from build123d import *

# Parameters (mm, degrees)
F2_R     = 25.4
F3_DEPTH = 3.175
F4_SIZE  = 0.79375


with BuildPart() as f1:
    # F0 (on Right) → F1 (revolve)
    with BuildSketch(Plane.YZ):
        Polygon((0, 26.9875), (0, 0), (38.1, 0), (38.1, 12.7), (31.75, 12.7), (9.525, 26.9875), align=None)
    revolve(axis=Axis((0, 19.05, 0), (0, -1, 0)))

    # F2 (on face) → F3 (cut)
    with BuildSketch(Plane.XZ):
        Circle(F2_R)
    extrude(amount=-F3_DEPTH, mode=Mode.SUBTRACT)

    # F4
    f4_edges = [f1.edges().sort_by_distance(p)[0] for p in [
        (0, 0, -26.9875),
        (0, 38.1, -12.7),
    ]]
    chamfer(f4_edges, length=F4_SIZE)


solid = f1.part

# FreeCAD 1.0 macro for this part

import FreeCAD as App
import Part
import Sketcher
Q = App.Units.Quantity


def edges_at(feature, points):
    """Names of the edges that pass closest to the given points."""
    edges = feature.Shape.Edges
    near = lambda p: min(range(len(edges)), key=lambda i: edges[i].distToShape(Part.Vertex(*p))[0])
    return sorted({f"Edge{near(p) + 1}" for p in points})


def add_polygon(sketch, points):
    """Adds a closed chain of lines whose ends are joined by coincident constraints."""
    first, n = sketch.GeometryCount, len(points)
    for a, b in zip(points, points[1:] + points[:1]):
        sketch.addGeometry(Part.LineSegment(App.Vector(*a, 0), App.Vector(*b, 0)), False)
    for i in range(n):
        sketch.addConstraint(Sketcher.Constraint("Coincident", first + i, 2, first + (i + 1) % n, 1))

doc = App.newDocument("Part")
body = doc.addObject("PartDesign::Body", "Body")

# Sketch on YZ plane
sketch1 = body.newObject("Sketcher::SketchObject", "Sketch")
sketch1.AttachmentSupport = (doc.getObject("YZ_Plane"), [""])
sketch1.MapMode = "FlatFace"
add_polygon(sketch1, [(0, 27), (0, 0), (38, 0), (38, 13), (32, 13), (10, 27)])  # lines 0-5
sketch1.addConstraint([
    Sketcher.Constraint("Vertical", 0),
    Sketcher.Constraint("Horizontal", 1),
    Sketcher.Constraint("Vertical", 2),
    Sketcher.Constraint("Horizontal", 3),
    Sketcher.Constraint("Horizontal", 5),
    Sketcher.Constraint("Coincident", 0, 2, -1, 1),
    Sketcher.Constraint("DistanceX", 1, 1, 1, 2, Q("1.5 in")),
    Sketcher.Constraint("DistanceY", 2, 1, 2, 2, Q("0.5 in")),
    Sketcher.Constraint("DistanceX", 3, 2, 3, 1, Q("0.25 in")),
    Sketcher.Constraint("DistanceX", 5, 2, 5, 1, Q("0.375 in")),
    Sketcher.Constraint("DistanceY", 0, 2, 0, 1, Q("1.0625 in")),
])
revolution = body.newObject("PartDesign::Revolution", "Revolution")
revolution.Profile = sketch1
revolution.ReferenceAxis = (sketch1, ["H_Axis"])
revolution.Angle = 360

# Sketch on XZ plane
sketch2 = body.newObject("Sketcher::SketchObject", "Sketch001")
sketch2.AttachmentSupport = (doc.getObject("XZ_Plane"), [""])
sketch2.MapMode = "FlatFace"
sketch2.addGeometry(Part.Circle(App.Vector(0, 0, 0), App.Vector(0, 0, 1), 25), False)
sketch2.addConstraint([
    Sketcher.Constraint("Coincident", 0, 3, -1, 1),
    Sketcher.Constraint("Diameter", 0, Q("2 in")),
])
pocket1 = body.newObject("PartDesign::Pocket", "Pocket")
pocket1.Profile = sketch2
pocket1.Length = Q("0.125 in")
doc.recompute()

chamfer = body.newObject("PartDesign::Chamfer", "Chamfer")
chamfer.Base = (pocket1, edges_at(pocket1, [(0, 0, -26.988), (0, 38.1, -12.7)]))
chamfer.Size = Q("0.03125 in")

doc.recompute()
